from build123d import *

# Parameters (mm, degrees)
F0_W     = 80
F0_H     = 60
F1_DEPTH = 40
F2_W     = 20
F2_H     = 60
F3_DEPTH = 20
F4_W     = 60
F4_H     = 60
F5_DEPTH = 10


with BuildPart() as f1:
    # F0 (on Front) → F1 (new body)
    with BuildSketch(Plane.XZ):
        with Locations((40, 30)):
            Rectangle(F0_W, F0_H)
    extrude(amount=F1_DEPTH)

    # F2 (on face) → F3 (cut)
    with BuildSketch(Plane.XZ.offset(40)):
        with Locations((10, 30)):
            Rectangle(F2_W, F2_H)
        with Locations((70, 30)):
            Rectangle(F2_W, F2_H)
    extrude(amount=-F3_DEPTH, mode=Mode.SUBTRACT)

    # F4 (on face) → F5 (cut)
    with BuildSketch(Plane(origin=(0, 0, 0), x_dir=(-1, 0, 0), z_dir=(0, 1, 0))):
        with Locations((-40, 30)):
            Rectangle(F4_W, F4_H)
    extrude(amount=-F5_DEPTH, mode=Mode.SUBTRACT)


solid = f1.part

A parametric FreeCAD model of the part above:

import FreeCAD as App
import Part
import Sketcher


def add_polygon(sketch, points):
    """Adds a closed chain of lines whose ends are joined by coincident constraints."""
    first, n = sketch.GeometryCount, len(points)
    for a, b in zip(points, points[1:] + points[:1]):
        sketch.addGeometry(Part.LineSegment(App.Vector(*a, 0), App.Vector(*b, 0)), False)
    for i in range(n):
        sketch.addConstraint(Sketcher.Constraint("Coincident", first + i, 2, first + (i + 1) % n, 1))

doc = App.newDocument("Part")
params = doc.addObject("Spreadsheet::Sheet", "Params")
for row, (alias, value) in enumerate([
    ("sketch1_width", "80 mm"),
    ("sketch1_height", "60 mm"),
    ("pad1_length", "40 mm"),
    ("sketch2_width", "20 mm"),
    ("sketch2_height", "60 mm"),
    ("pocket1_length", "20 mm"),
    ("sketch3_width", "60 mm"),
    ("pocket2_length", "10 mm"),
], start=1):
    params.set(f"A{row}", alias)
    params.set(f"B{row}", "=" + value)
    params.setAlias(f"B{row}", alias)

body = doc.addObject("PartDesign::Body", "Body")

sketch1 = body.newObject("Sketcher::SketchObject", "Sketch")
sketch1.AttachmentSupport = (doc.getObject("XZ_Plane"), [""])
sketch1.MapMode = "FlatFace"
add_polygon(sketch1, [(0, 60), (0, 0), (80, 0), (80, 60)])
sketch1.addConstraint([
    Sketcher.Constraint("Vertical", 0),
    Sketcher.Constraint("Horizontal", 1),
    Sketcher.Constraint("Vertical", 2),
    Sketcher.Constraint("Horizontal", 3),
    Sketcher.Constraint("Coincident", 0, 2, -1, 1),
    Sketcher.Constraint("DistanceX", 1, 1, 1, 2, 80.0),
    Sketcher.Constraint("DistanceY", 0, 2, 0, 1, 60.0),
])
sketch1.setExpression("Constraints[9]", "Params.sketch1_width")
sketch1.setExpression("Constraints[10]", "Params.sketch1_height")
pad1 = body.newObject("PartDesign::Pad", "Pad")
pad1.Profile = sketch1
pad1.setExpression("Length", "Params.pad1_length")

sketch2 = body.newObject("Sketcher::SketchObject", "Sketch001")
sketch2.AttachmentSupport = (doc.getObject("XZ_Plane"), [""])
sketch2.MapMode = "FlatFace"
sketch2.AttachmentOffset = App.Placement(App.Vector(0, 0, 40), App.Rotation())
add_polygon(sketch2, [(0, 60), (0, 0), (20, 0), (20, 60)])
add_polygon(sketch2, [(60, 60), (60, 0), (80, 0), (80, 60)])
sketch2.addConstraint([
    Sketcher.Constraint("Vertical", 0),
    Sketcher.Constraint("Horizontal", 1),
    Sketcher.Constraint("Vertical", 2),
    Sketcher.Constraint("Horizontal", 3),
    Sketcher.Constraint("Vertical", 4),
    Sketcher.Constraint("Horizontal", 5),
    Sketcher.Constraint("Vertical", 6),
    Sketcher.Constraint("Horizontal", 7),
    Sketcher.Constraint("Coincident", 0, 2, -1, 1),
    Sketcher.Constraint("PointOnObject", 4, 2, -1),
    Sketcher.Constraint("Horizontal", 3, 2, 6, 2),
    Sketcher.Constraint("Equal", 3, 5),
    Sketcher.Constraint("DistanceX", 1, 1, 1, 2, 20.0),
    Sketcher.Constraint("DistanceY", 0, 2, 0, 1, 60.0),
    Sketcher.Constraint("DistanceX", -1, 1, 4, 2, 60.0),
])
sketch2.setExpression("Constraints[20]", "Params.sketch2_width")
sketch2.setExpression("Constraints[21]", "Params.sketch2_height")
pocket1 = body.newObject("PartDesign::Pocket", "Pocket")
pocket1.Profile = sketch2
pocket1.setExpression("Length", "Params.pocket1_length")

sketch3 = body.newObject("Sketcher::SketchObject", "Sketch002")
sketch3.AttachmentSupport = (doc.getObject("XZ_Plane"), [""])
sketch3.MapMode = "FlatFace"
add_polygon(sketch3, [(70, 60), (70, 0), (10, 0), (10, 60)])
sketch3.addConstraint([
    Sketcher.Constraint("Vertical", 0),
    Sketcher.Constraint("Horizontal", 1),
    Sketcher.Constraint("Vertical", 2),
    Sketcher.Constraint("Horizontal", 3),
    Sketcher.Constraint("PointOnObject", 0, 2, -1),
    Sketcher.Constraint("Equal", 3, 0),
    Sketcher.Constraint("DistanceX", 1, 2, 1, 1, 60.0),
    Sketcher.Constraint("DistanceX", -1, 1, 0, 2, 70.0),
])
sketch3.setExpression("Constraints[10]", "Params.sketch3_width")
pocket2 = body.newObject("PartDesign::Pocket", "Pocket001")
pocket2.Profile = sketch3
pocket2.setExpression("Length", "Params.pocket2_length")
pocket2.Reversed = True

doc.recompute()
